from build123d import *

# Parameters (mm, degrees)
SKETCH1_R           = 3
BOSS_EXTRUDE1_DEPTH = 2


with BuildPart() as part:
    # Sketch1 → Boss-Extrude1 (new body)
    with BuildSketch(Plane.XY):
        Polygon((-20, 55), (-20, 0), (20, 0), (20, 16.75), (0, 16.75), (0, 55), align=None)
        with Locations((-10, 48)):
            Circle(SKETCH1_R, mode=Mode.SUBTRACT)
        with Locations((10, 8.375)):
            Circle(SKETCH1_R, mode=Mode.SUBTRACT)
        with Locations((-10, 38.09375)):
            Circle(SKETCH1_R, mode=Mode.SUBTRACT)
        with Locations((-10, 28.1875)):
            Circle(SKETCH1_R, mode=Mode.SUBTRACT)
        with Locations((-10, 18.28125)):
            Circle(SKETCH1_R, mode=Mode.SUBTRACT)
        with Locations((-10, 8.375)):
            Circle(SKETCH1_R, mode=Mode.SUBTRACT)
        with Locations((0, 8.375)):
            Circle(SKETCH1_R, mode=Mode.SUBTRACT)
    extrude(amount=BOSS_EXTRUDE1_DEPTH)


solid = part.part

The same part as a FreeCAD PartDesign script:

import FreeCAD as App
import Part
import Sketcher


def add_polygon(sketch, points):
    """Adds a closed chain of lines whose ends are joined by coincident constraints."""
    first, n = sketch.GeometryCount, len(points)
    for a, b in zip(points, points[1:] + points[:1]):
        sketch.addGeometry(Part.LineSegment(App.Vector(*a, 0), App.Vector(*b, 0)), False)
    for i in range(n):
        sketch.addConstraint(Sketcher.Constraint("Coincident", first + i, 2, first + (i + 1) % n, 1))

doc = App.newDocument("Part")
body = doc.addObject("PartDesign::Body", "Body")

# Sketch on XY plane
sketch1 = body.newObject("Sketcher::SketchObject", "Sketch")
sketch1.AttachmentSupport = (doc.getObject("XY_Plane"), [""])
sketch1.MapMode = "FlatFace"
add_polygon(sketch1, [(-20, 55), (-20, 0), (20, 0), (20, 16.8), (0, 16.8), (0, 55)])  # lines 0-5
sketch1.addGeometry(Part.Circle(App.Vector(-10, 8.4, 0), App.Vector(0, 0, 1), 3), False)  # 6
sketch1.addGeometry(Part.Circle(App.Vector(-10, 18.3, 0), App.Vector(0, 0, 1), 3), False)  # 7
sketch1.addGeometry(Part.Circle(App.Vector(0, 8.4, 0), App.Vector(0, 0, 1), 3), False)  # 8
sketch1.addGeometry(Part.Circle(App.Vector(10, 8.4, 0), App.Vector(0, 0, 1), 3), False)  # 9
sketch1.addGeometry(Part.Circle(App.Vector(-10, 28.2, 0), App.Vector(0, 0, 1), 3), False)  # 10
sketch1.addGeometry(Part.Circle(App.Vector(-10, 38.1, 0), App.Vector(0, 0, 1), 3), False)  # 11
sketch1.addGeometry(Part.Circle(App.Vector(-10, 48, 0), App.Vector(0, 0, 1), 3), False)  # 12
sketch1.addConstraint(Sketcher.Constraint("Vertical", 0))
sketch1.addConstraint(Sketcher.Constraint("Horizontal", 1))
sketch1.addConstraint(Sketcher.Constraint("Vertical", 2))
sketch1.addConstraint(Sketcher.Constraint("Horizontal", 3))
sketch1.addConstraint(Sketcher.Constraint("Vertical", 4))
sketch1.addConstraint(Sketcher.Constraint("Horizontal", 5))
sketch1.addConstraint(Sketcher.Constraint("Equal", 6, 7))
sketch1.addConstraint(Sketcher.Constraint("Equal", 7, 8))
sketch1.addConstraint(Sketcher.Constraint("Equal", 8, 9))
sketch1.addConstraint(Sketcher.Constraint("Equal", 9, 10))
sketch1.addConstraint(Sketcher.Constraint("Equal", 10, 11))
sketch1.addConstraint(Sketcher.Constraint("Equal", 11, 12))
sketch1.addConstraint(Sketcher.Constraint("Symmetric", 0, 2, 1, 2, -1, 1))
sketch1.addConstraint(Sketcher.Constraint("Symmetric", 6, 3, 9, 3, -2))
sketch1.addConstraint(Sketcher.Constraint("PointOnObject", 8, 3, -2))
sketch1.addConstraint(Sketcher.Constraint("PointOnObject", 3, 2, -2))
sketch1.addConstraint(Sketcher.Constraint("Horizontal", 6, 3, 8, 3))
sketch1.addConstraint(Sketcher.Constraint("Vertical", 6, 3, 7, 3))
sketch1.addConstraint(Sketcher.Constraint("Vertical", 7, 3, 10, 3))
sketch1.addConstraint(Sketcher.Constraint("Vertical", 10, 3, 11, 3))
sketch1.addConstraint(Sketcher.Constraint("Vertical", 11, 3, 12, 3))
sketch1.addConstraint(Sketcher.Constraint("Diameter", 6, 6.0))
sketch1.addConstraint(Sketcher.Constraint("DistanceX", 1, 1, 1, 2, 40.0))
sketch1.addConstraint(Sketcher.Constraint("DistanceY", 0, 2, 0, 1, 55.0))
sketch1.addConstraint(Sketcher.Constraint("DistanceX", 6, 3, -1, 1, 10.0))
sketch1.addConstraint(Sketcher.Constraint("DistanceY", -1, 1, 12, 3, 48.0))
sketch1.addConstraint(Sketcher.Constraint("DistanceY", 2, 1, 2, 2, 16.75))
sketch1.addConstraint(Sketcher.Constraint("DistanceY", -1, 1, 6, 3, 8.375))
sketch1.addConstraint(Sketcher.Constraint("DistanceY", -1, 1, 10, 3, 28.1875))
sketch1.addConstraint(Sketcher.Constraint("DistanceY", 7, 3, 11, 3, 19.8125))
sketch1.addConstraint(Sketcher.Constraint("DistanceY", -1, 1, 7, 3, 18.28125))
pad1 = body.newObject("PartDesign::Pad", "Pad")
pad1.Profile = sketch1
pad1.Length = 2

doc.recompute()
